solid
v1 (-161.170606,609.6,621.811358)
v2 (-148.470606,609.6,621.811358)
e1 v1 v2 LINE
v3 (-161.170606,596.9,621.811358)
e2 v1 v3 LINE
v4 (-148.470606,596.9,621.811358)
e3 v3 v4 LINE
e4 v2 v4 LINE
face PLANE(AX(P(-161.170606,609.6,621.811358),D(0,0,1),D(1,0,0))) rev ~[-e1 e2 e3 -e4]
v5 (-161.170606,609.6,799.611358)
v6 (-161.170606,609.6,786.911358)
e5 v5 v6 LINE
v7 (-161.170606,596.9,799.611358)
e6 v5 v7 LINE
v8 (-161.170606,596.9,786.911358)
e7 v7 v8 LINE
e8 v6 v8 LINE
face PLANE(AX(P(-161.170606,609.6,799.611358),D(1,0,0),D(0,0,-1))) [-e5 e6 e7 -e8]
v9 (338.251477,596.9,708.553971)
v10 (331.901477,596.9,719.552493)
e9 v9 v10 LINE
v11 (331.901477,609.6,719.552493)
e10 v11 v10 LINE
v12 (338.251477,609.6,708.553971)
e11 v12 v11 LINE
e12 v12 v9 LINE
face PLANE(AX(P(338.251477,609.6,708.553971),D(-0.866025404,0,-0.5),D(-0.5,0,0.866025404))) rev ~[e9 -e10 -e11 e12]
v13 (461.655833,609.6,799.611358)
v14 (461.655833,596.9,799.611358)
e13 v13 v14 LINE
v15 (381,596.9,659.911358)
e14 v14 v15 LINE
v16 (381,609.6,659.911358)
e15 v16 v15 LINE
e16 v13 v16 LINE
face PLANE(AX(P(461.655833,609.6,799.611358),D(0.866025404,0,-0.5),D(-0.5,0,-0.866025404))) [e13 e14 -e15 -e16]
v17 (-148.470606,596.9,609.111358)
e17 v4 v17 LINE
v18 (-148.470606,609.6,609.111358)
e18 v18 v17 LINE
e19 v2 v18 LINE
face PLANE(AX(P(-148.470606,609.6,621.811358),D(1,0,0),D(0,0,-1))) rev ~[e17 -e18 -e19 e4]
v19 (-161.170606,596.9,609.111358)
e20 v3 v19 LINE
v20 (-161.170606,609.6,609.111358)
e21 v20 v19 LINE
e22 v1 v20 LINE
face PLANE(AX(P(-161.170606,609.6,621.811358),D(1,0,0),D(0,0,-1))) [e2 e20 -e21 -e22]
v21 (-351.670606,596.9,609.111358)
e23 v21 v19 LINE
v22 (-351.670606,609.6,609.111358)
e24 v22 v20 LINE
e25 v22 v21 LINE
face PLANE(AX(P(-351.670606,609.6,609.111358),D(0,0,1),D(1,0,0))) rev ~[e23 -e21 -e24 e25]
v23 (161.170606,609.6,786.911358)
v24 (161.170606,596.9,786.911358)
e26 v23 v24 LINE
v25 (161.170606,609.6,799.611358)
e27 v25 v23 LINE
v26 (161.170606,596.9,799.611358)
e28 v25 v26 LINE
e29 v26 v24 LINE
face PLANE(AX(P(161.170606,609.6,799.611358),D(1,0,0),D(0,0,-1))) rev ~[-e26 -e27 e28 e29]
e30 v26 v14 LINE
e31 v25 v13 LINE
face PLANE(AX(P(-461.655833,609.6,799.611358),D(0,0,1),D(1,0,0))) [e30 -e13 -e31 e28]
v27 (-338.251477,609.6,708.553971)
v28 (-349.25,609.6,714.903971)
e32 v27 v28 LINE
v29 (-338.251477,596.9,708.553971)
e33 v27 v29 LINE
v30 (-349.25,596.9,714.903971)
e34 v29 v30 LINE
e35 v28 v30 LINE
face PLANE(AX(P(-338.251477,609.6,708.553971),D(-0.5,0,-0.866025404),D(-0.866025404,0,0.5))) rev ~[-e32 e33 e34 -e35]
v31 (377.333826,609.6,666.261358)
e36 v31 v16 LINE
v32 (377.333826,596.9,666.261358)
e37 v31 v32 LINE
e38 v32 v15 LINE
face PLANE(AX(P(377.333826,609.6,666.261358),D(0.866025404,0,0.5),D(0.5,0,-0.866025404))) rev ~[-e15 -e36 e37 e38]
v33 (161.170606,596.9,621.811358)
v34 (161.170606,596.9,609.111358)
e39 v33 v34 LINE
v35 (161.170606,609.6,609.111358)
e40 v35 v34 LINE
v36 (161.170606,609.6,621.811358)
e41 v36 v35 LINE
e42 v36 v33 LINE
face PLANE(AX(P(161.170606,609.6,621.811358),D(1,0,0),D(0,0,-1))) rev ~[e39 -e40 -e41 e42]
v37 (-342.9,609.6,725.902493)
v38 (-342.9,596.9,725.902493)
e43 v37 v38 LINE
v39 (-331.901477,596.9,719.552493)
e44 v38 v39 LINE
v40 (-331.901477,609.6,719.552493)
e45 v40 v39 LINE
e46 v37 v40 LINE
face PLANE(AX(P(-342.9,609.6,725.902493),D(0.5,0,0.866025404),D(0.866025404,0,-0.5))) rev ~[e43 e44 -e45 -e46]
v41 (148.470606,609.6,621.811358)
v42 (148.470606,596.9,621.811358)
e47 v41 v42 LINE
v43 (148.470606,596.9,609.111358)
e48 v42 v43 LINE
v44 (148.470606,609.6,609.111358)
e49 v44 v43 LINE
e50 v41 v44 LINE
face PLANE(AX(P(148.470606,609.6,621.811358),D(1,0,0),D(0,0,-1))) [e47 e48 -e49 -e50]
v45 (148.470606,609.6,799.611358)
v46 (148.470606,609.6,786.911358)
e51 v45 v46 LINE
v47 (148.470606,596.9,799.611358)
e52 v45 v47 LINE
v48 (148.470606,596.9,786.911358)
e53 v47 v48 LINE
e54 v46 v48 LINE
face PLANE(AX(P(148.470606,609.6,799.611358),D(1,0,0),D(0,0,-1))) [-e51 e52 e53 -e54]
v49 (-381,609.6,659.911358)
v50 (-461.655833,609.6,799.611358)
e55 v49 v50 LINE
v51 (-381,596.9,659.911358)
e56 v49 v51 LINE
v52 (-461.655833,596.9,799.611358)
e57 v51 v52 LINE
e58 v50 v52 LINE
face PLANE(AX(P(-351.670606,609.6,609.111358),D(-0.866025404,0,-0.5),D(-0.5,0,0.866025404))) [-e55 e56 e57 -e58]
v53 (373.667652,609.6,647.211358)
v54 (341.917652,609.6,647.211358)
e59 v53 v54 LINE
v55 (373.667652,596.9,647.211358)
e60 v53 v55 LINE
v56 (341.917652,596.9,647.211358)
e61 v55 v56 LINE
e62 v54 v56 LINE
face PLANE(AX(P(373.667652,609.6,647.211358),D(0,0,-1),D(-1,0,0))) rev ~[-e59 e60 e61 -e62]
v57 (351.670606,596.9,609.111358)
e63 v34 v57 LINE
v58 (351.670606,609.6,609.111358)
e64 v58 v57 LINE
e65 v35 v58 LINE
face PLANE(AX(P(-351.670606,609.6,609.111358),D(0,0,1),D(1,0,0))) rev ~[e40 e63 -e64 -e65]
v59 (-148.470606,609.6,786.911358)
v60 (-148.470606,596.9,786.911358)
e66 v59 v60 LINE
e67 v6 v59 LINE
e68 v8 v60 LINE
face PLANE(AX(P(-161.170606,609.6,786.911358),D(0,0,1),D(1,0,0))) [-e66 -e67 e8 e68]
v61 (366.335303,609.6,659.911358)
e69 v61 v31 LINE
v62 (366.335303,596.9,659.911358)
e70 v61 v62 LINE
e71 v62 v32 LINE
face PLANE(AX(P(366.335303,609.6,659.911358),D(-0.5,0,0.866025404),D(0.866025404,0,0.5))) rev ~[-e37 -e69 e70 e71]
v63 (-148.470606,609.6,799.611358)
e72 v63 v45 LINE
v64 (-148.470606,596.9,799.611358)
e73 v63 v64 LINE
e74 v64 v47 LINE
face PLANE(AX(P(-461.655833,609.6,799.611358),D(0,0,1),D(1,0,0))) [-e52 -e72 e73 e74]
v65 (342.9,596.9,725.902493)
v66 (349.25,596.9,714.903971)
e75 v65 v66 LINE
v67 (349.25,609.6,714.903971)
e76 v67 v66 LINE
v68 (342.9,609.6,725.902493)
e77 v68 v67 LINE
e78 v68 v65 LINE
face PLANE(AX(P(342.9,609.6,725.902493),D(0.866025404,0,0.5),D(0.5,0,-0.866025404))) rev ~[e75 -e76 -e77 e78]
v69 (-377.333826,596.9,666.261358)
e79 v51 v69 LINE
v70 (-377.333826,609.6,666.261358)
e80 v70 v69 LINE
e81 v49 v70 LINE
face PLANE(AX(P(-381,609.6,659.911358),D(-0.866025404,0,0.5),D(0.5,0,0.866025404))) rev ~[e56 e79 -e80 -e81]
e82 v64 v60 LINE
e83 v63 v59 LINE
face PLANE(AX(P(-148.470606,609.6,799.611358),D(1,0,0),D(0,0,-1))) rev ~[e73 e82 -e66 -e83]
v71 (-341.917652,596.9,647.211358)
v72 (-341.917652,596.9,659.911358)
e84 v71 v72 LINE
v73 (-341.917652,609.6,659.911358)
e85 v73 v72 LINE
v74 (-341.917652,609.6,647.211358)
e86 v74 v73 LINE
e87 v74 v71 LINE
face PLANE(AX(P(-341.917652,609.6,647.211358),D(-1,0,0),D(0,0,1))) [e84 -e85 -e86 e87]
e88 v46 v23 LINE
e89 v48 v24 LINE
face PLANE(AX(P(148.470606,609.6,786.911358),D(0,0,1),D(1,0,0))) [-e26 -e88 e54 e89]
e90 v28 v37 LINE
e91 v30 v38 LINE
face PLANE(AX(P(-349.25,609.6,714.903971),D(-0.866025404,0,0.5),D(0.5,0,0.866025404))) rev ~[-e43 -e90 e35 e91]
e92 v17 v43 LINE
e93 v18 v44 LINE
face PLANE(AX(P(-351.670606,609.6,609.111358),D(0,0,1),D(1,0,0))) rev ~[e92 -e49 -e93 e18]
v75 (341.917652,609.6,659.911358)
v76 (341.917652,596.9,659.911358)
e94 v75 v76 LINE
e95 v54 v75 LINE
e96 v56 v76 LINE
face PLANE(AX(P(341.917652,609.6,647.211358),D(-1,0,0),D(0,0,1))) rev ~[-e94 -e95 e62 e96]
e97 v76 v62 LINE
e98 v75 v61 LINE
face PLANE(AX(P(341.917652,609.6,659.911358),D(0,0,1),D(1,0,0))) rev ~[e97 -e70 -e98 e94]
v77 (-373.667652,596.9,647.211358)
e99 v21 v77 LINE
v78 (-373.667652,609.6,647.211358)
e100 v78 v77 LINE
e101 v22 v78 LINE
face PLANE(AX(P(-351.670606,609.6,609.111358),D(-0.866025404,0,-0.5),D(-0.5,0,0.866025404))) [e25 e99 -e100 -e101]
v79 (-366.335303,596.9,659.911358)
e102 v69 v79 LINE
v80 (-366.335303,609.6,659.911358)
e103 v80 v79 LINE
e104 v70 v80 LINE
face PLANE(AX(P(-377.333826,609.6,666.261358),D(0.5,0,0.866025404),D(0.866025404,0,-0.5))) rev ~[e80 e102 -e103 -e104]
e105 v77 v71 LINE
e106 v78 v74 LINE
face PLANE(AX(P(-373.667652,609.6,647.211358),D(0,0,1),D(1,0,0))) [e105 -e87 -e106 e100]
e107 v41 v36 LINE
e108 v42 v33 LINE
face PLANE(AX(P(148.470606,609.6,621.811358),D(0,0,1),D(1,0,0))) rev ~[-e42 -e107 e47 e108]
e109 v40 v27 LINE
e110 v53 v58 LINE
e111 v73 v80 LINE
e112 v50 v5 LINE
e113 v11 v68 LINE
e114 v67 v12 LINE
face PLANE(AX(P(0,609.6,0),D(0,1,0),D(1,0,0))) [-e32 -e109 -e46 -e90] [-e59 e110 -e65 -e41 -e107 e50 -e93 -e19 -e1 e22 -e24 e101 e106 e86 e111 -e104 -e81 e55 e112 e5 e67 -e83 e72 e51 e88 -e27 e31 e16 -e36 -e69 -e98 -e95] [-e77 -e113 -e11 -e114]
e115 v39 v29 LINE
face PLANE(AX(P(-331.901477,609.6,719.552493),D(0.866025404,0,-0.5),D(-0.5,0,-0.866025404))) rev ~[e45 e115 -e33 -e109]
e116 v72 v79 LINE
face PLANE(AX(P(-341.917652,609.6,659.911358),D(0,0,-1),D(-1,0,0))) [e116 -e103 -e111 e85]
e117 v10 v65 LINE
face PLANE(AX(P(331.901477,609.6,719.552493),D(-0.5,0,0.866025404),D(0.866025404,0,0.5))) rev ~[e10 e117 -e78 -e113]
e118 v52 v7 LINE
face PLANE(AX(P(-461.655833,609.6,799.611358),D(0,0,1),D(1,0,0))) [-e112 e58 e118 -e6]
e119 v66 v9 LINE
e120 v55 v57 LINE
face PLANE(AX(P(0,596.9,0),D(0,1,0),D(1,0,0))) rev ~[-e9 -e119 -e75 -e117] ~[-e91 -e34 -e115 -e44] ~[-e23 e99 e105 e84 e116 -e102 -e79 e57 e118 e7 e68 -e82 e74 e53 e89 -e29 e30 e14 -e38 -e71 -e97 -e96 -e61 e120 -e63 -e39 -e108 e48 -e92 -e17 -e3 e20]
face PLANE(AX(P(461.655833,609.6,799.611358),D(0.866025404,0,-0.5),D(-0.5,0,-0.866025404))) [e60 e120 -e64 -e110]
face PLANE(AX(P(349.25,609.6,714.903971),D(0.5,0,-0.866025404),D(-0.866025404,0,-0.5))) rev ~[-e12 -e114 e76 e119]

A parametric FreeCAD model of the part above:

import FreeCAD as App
import Part
import Sketcher
from FreeCAD import Vector
Q = App.Units.Quantity

doc = App.newDocument("Part")
body = doc.addObject("PartDesign::Body", "Body")

sketch1 = doc.addObject("Sketcher::SketchObject", "Sketch")
body.addObject(sketch1)
sketch1.AttachmentSupport = (doc.XZ_Plane, [""])
sketch1.MapMode = "FlatFace"
sketch1.AttachmentOffset = App.Placement(Vector(0, 0, -24 * 25.4), App.Rotation())
sketch1.addGeometry([
    Part.LineSegment(Vector(923, 0, 0), Vector(462, -800, 0)),
    Part.LineSegment(Vector(462, -800, 0), Vector(-462, -800, 0)),
    Part.LineSegment(Vector(-462, -800, 0), Vector(-923, 0, 0)),
    Part.LineSegment(Vector(-923, 0, 0), Vector(-462, 800, 0)),
    Part.LineSegment(Vector(-462, 800, 0), Vector(462, 800, 0)),
    Part.LineSegment(Vector(462, 800, 0), Vector(923, 0, 0)),
    Part.LineSegment(Vector(-703, 0, 0), Vector(-352, -609, 0)),
    Part.LineSegment(Vector(-352, -609, 0), Vector(352, -609, 0)),
    Part.LineSegment(Vector(352, -609, 0), Vector(703, 0, 0)),
    Part.LineSegment(Vector(703, 0, 0), Vector(352, 609, 0)),
    Part.LineSegment(Vector(352, 609, 0), Vector(-352, 609, 0)),
    Part.LineSegment(Vector(-352, 609, 0), Vector(-703, 0, 0)),
], False)
sketch1.addConstraint([
    Sketcher.Constraint("Coincident", 0, 2, 1, 1),
    Sketcher.Constraint("Coincident", 1, 2, 2, 1),
    Sketcher.Constraint("Coincident", 2, 2, 3, 1),
    Sketcher.Constraint("Coincident", 3, 2, 4, 1),
    Sketcher.Constraint("Coincident", 4, 2, 5, 1),
    Sketcher.Constraint("Coincident", 5, 2, 0, 1),
    Sketcher.Constraint("Coincident", 6, 2, 7, 1),
    Sketcher.Constraint("Coincident", 7, 2, 8, 1),
    Sketcher.Constraint("Coincident", 8, 2, 9, 1),
    Sketcher.Constraint("Coincident", 9, 2, 10, 1),
    Sketcher.Constraint("Coincident", 10, 2, 11, 1),
    Sketcher.Constraint("Coincident", 11, 2, 6, 1),
    Sketcher.Constraint("Horizontal", 1),
    Sketcher.Constraint("Horizontal", 4),
    Sketcher.Constraint("Horizontal", 7),
    Sketcher.Constraint("Horizontal", 10),
    Sketcher.Constraint("Symmetric", 0, 2, 3, 2, -1, 1),
    Sketcher.Constraint("Symmetric", 2, 2, 5, 2, -1, 1),
    Sketcher.Constraint("Symmetric", 6, 2, 9, 2, -1, 1),
    Sketcher.Constraint("Symmetric", 8, 2, 11, 2, -1, 1),
    Sketcher.Constraint("PointOnObject", 2, 2, -1),
    Sketcher.Constraint("PointOnObject", 8, 2, -1),
    Sketcher.Constraint("Parallel", 2, 5),
    Sketcher.Constraint("Parallel", 5, 6),
    Sketcher.Constraint("Parallel", 3, 8),
    Sketcher.Constraint("Parallel", 8, 11),
    Sketcher.Constraint("Vertical", 1, 2, 3, 2),
    Sketcher.Constraint("Angle", 0, Q("-120 deg")),
    Sketcher.Constraint("DistanceY", 1, 2, 6, 2, Q("7.5 in")),
    Sketcher.Constraint("DistanceX", 1, 2, 1, 1, 923.311665),
    Sketcher.Constraint("DistanceX", 7, 1, 7, 2, 703.341213),
    Sketcher.Constraint("DistanceX", 2, 2, 5, 2, 1846.62333),
])
pad1 = doc.addObject("PartDesign::Pad", "Pad")
body.addObject(pad1)
pad1.Profile = sketch1
pad1.Length = Q("0.5 in")

sketch2 = doc.addObject("Sketcher::SketchObject", "Sketch001")
body.addObject(sketch2)
sketch2.AttachmentSupport = (doc.XZ_Plane, [""])
sketch2.MapMode = "FlatFace"
sketch2.AttachmentOffset = App.Placement(Vector(0, 0, -24 * 25.4), App.Rotation())
sketch2.addGeometry([
    Part.LineSegment(Vector(-1169, -1045, 0), Vector(-1169, 1045, 0)),
    Part.LineSegment(Vector(-1169, 1045, 0), Vector(1169, 1045, 0)),
    Part.LineSegment(Vector(1169, 1045, 0), Vector(1169, -1045, 0)),
    Part.LineSegment(Vector(1169, -1045, 0), Vector(-1169, -1045, 0)),
    Part.LineSegment(Vector(-462, 800, 0), Vector(-352, 609, 0)),
    Part.LineSegment(Vector(-352, 609, 0), Vector(352, 609, 0)),
    Part.LineSegment(Vector(352, 609, 0), Vector(462, 800, 0)),
    Part.LineSegment(Vector(462, 800, 0), Vector(-462, 800, 0)),
], False)
sketch2.addConstraint([
    Sketcher.Constraint("Coincident", 0, 2, 1, 1),
    Sketcher.Constraint("Coincident", 1, 2, 2, 1),
    Sketcher.Constraint("Coincident", 2, 2, 3, 1),
    Sketcher.Constraint("Coincident", 3, 2, 0, 1),
    Sketcher.Constraint("Coincident", 4, 2, 5, 1),
    Sketcher.Constraint("Coincident", 5, 2, 6, 1),
    Sketcher.Constraint("Coincident", 6, 2, 7, 1),
    Sketcher.Constraint("Coincident", 7, 2, 4, 1),
    Sketcher.Constraint("Vertical", 0),
    Sketcher.Constraint("Horizontal", 1),
    Sketcher.Constraint("Vertical", 2),
    Sketcher.Constraint("Horizontal", 3),
    Sketcher.Constraint("Horizontal", 5),
    Sketcher.Constraint("Horizontal", 7),
    Sketcher.Constraint("Symmetric", 0, 2, 2, 2, -1, 1),
    Sketcher.Constraint("Equal", 4, 6),
    Sketcher.Constraint("Angle", 4, Q("-60 deg")),
    Sketcher.Constraint("DistanceY", 5, 2, 6, 2, Q("7.5 in")),
    Sketcher.Constraint("DistanceX", 1, 1, 1, 2, 2337.202),
    Sketcher.Constraint("DistanceY", 0, 1, 0, 2, 2089.8),
    Sketcher.Constraint("DistanceX", 5, 1, 5, 2, 703.341213),
    Sketcher.Constraint("DistanceX", 4, 2, -1, 1, 351.670606),
    Sketcher.Constraint("DistanceY", -1, 1, 4, 2, 609.111358),
])
pocket1 = doc.addObject("PartDesign::Pocket", "Pocket")
body.addObject(pocket1)
pocket1.Profile = sketch2
pocket1.Length = Q("0.5 in")
pocket1.Reversed = True

sketch3 = doc.addObject("Sketcher::SketchObject", "Sketch002")
body.addObject(sketch3)
sketch3.AttachmentSupport = (doc.XZ_Plane, [""])
sketch3.MapMode = "FlatFace"
sketch3.AttachmentOffset = App.Placement(Vector(0, 0, -24 * 25.4), App.Rotation())
sketch3.addGeometry([
    Part.LineSegment(Vector(-161, 609, 0), Vector(-161, 622, 0)),
    Part.LineSegment(Vector(-161, 622, 0), Vector(-148, 622, 0)),
    Part.LineSegment(Vector(-148, 622, 0), Vector(-148, 609, 0)),
    Part.LineSegment(Vector(-148, 609, 0), Vector(-161, 609, 0)),
    Part.LineSegment(Vector(-343, 726, 0), Vector(-332, 720, 0)),
    Part.LineSegment(Vector(-332, 720, 0), Vector(-338, 709, 0)),
    Part.LineSegment(Vector(-338, 709, 0), Vector(-349, 715, 0)),
    Part.LineSegment(Vector(-349, 715, 0), Vector(-343, 726, 0)),
    Part.LineSegment(Vector(-161, 787, 0), Vector(-161, 800, 0)),
    Part.LineSegment(Vector(-161, 800, 0), Vector(-148, 800, 0)),
    Part.LineSegment(Vector(-148, 800, 0), Vector(-148, 787, 0)),
    Part.LineSegment(Vector(-148, 787, 0), Vector(-161, 787, 0)),
    Part.LineSegment(Vector(-374, 647, 0), Vector(-381, 660, 0)),
    Part.LineSegment(Vector(-381, 660, 0), Vector(-377, 666, 0)),
    Part.LineSegment(Vector(-377, 666, 0), Vector(-366, 660, 0)),
    Part.LineSegment(Vector(-366, 660, 0), Vector(-374, 647, 0)),
    Part.LineSegment(Vector(381, 660, 0), Vector(374, 647, 0)),
    Part.LineSegment(Vector(374, 647, 0), Vector(366, 660, 0)),
    Part.LineSegment(Vector(366, 660, 0), Vector(377, 666, 0)),
    Part.LineSegment(Vector(377, 666, 0), Vector(381, 660, 0)),
    Part.LineSegment(Vector(338, 709, 0), Vector(332, 720, 0)),
    Part.LineSegment(Vector(332, 720, 0), Vector(343, 726, 0)),
    Part.LineSegment(Vector(343, 726, 0), Vector(349, 715, 0)),
    Part.LineSegment(Vector(349, 715, 0), Vector(338, 709, 0)),
    Part.LineSegment(Vector(148, 609, 0), Vector(148, 622, 0)),
    Part.LineSegment(Vector(148, 622, 0), Vector(161, 622, 0)),
    Part.LineSegment(Vector(161, 622, 0), Vector(161, 609, 0)),
    Part.LineSegment(Vector(161, 609, 0), Vector(148, 609, 0)),
    Part.LineSegment(Vector(148, 787, 0), Vector(148, 800, 0)),
    Part.LineSegment(Vector(148, 800, 0), Vector(161, 800, 0)),
    Part.LineSegment(Vector(161, 800, 0), Vector(161, 787, 0)),
    Part.LineSegment(Vector(161, 787, 0), Vector(148, 787, 0)),
], False)
sketch3.addConstraint([
    Sketcher.Constraint("Coincident", 0, 2, 1, 1),
    Sketcher.Constraint("Coincident", 1, 2, 2, 1),
    Sketcher.Constraint("Coincident", 2, 2, 3, 1),
    Sketcher.Constraint("Coincident", 3, 2, 0, 1),
    Sketcher.Constraint("Coincident", 4, 2, 5, 1),
    Sketcher.Constraint("Coincident", 5, 2, 6, 1),
    Sketcher.Constraint("Coincident", 6, 2, 7, 1),
    Sketcher.Constraint("Coincident", 7, 2, 4, 1),
    Sketcher.Constraint("Coincident", 8, 2, 9, 1),
    Sketcher.Constraint("Coincident", 9, 2, 10, 1),
    Sketcher.Constraint("Coincident", 10, 2, 11, 1),
    Sketcher.Constraint("Coincident", 11, 2, 8, 1),
    Sketcher.Constraint("Coincident", 12, 2, 13, 1),
    Sketcher.Constraint("Coincident", 13, 2, 14, 1),
    Sketcher.Constraint("Coincident", 14, 2, 15, 1),
    Sketcher.Constraint("Coincident", 15, 2, 12, 1),
    Sketcher.Constraint("Coincident", 16, 2, 17, 1),
    Sketcher.Constraint("Coincident", 17, 2, 18, 1),
    Sketcher.Constraint("Coincident", 18, 2, 19, 1),
    Sketcher.Constraint("Coincident", 19, 2, 16, 1),
    Sketcher.Constraint("Coincident", 20, 2, 21, 1),
    Sketcher.Constraint("Coincident", 21, 2, 22, 1),
    Sketcher.Constraint("Coincident", 22, 2, 23, 1),
    Sketcher.Constraint("Coincident", 23, 2, 20, 1),
    Sketcher.Constraint("Coincident", 24, 2, 25, 1),
    Sketcher.Constraint("Coincident", 25, 2, 26, 1),
    Sketcher.Constraint("Coincident", 26, 2, 27, 1),
    Sketcher.Constraint("Coincident", 27, 2, 24, 1),
    Sketcher.Constraint("Coincident", 28, 2, 29, 1),
    Sketcher.Constraint("Coincident", 29, 2, 30, 1),
    Sketcher.Constraint("Coincident", 30, 2, 31, 1),
    Sketcher.Constraint("Coincident", 31, 2, 28, 1),
    Sketcher.Constraint("Vertical", 0),
    Sketcher.Constraint("Horizontal", 1),
    Sketcher.Constraint("Vertical", 2),
    Sketcher.Constraint("Horizontal", 3),
    Sketcher.Constraint("Vertical", 8),
    Sketcher.Constraint("Horizontal", 9),
    Sketcher.Constraint("Vertical", 10),
    Sketcher.Constraint("Horizontal", 11),
    Sketcher.Constraint("Vertical", 24),
    Sketcher.Constraint("Horizontal", 25),
    Sketcher.Constraint("Vertical", 26),
    Sketcher.Constraint("Horizontal", 27),
    Sketcher.Constraint("Vertical", 28),
    Sketcher.Constraint("Horizontal", 29),
    Sketcher.Constraint("Vertical", 30),
    Sketcher.Constraint("Horizontal", 31),
    Sketcher.Constraint("Symmetric", 15, 2, 16, 2, -2),
    Sketcher.Constraint("Symmetric", 14, 2, 17, 2, -2),
    Sketcher.Constraint("Symmetric", 13, 2, 18, 2, -2),
    Sketcher.Constraint("Symmetric", 12, 2, 19, 2, -2),
    Sketcher.Constraint("Symmetric", 4, 2, 20, 2, -2),
    Sketcher.Constraint("Symmetric", 7, 2, 21, 2, -2),
    Sketcher.Constraint("Symmetric", 6, 2, 22, 2, -2),
    Sketcher.Constraint("Symmetric", 5, 2, 23, 2, -2),
    Sketcher.Constraint("Symmetric", 1, 2, 24, 2, -2),
    Sketcher.Constraint("Symmetric", 3, 2, 26, 2, -2),
    Sketcher.Constraint("Symmetric", 9, 2, 28, 2, -2),
    Sketcher.Constraint("Symmetric", 11, 2, 30, 2, -2),
    Sketcher.Constraint("Perpendicular", 4, 5),
    Sketcher.Constraint("Perpendicular", 5, 6),
    Sketcher.Constraint("Perpendicular", 6, 7),
    Sketcher.Constraint("Parallel", 7, 13),
    Sketcher.Constraint("Perpendicular", 13, 14),
    Sketcher.Constraint("Perpendicular", 14, 15),
    Sketcher.Constraint("Parallel", 15, 16),
    Sketcher.Constraint("Horizontal", 12, 2, 14, 2),
    Sketcher.Constraint("Vertical", 3, 2, 8, 2),
    Sketcher.Constraint("Vertical", 2, 2, 9, 2),
    Sketcher.Constraint("Equal", 31, 0),
    Sketcher.Constraint("Equal", 2, 8),
    Sketcher.Constraint("Equal", 4, 5),
    Sketcher.Constraint("Equal", 7, 14),
    Sketcher.Constraint("DistanceX", 1, 1, 1, 2, Q("0.5 in")),
    Sketcher.Constraint("DistanceX", 12, 2, -1, 1, Q("15 in")),
    Sketcher.Constraint("Angle", 4, Q("-30 deg")),
    Sketcher.Constraint("DistanceY", 0, 2, 8, 2, Q("7 in")),
    Sketcher.Constraint("DistanceY", 1, 2, 16, 2, Q("1 in")),
    Sketcher.Constraint("DistanceY", 2, 2, 17, 2, Q("2 in")),
    Sketcher.Constraint("DistanceX", 7, 2, -1, 1, Q("13.5 in")),
    Sketcher.Constraint("DistanceY", -1, 1, 5, 2, 708.553971),
    Sketcher.Constraint("DistanceX", 4, 2, 0, 2, 170.730871),
    Sketcher.Constraint("DistanceY", -1, 1, 0, 2, 621.811358),
])
pocket2 = doc.addObject("PartDesign::Pocket", "Pocket001")
body.addObject(pocket2)
pocket2.Profile = sketch3
pocket2.Length = Q("0.5 in")
pocket2.Reversed = True

sketch4 = doc.addObject("Sketcher::SketchObject", "Sketch003")
body.addObject(sketch4)
sketch4.AttachmentSupport = (doc.XZ_Plane, [""])
sketch4.MapMode = "FlatFace"
sketch4.AttachmentOffset = App.Placement(Vector(0, 0, -24 * 25.4), App.Rotation())
sketch4.addGeometry([
    Part.LineSegment(Vector(366, 660, 0), Vector(374, 647, 0)),
    Part.LineSegment(Vector(374, 647, 0), Vector(342, 647, 0)),
    Part.LineSegment(Vector(342, 647, 0), Vector(342, 660, 0)),
    Part.LineSegment(Vector(342, 660, 0), Vector(366, 660, 0)),
    Part.LineSegment(Vector(-342, 647, 0), Vector(-374, 647, 0)),
    Part.LineSegment(Vector(-374, 647, 0), Vector(-366, 660, 0)),
    Part.LineSegment(Vector(-366, 660, 0), Vector(-342, 660, 0)),
    Part.LineSegment(Vector(-342, 660, 0), Vector(-342, 647, 0)),
], False)
sketch4.addConstraint([
    Sketcher.Constraint("Coincident", 0, 2, 1, 1),
    Sketcher.Constraint("Coincident", 1, 2, 2, 1),
    Sketcher.Constraint("Coincident", 2, 2, 3, 1),
    Sketcher.Constraint("Coincident", 3, 2, 0, 1),
    Sketcher.Constraint("Coincident", 4, 2, 5, 1),
    Sketcher.Constraint("Coincident", 5, 2, 6, 1),
    Sketcher.Constraint("Coincident", 6, 2, 7, 1),
    Sketcher.Constraint("Coincident", 7, 2, 4, 1),
    Sketcher.Constraint("Horizontal", 1),
    Sketcher.Constraint("Vertical", 2),
    Sketcher.Constraint("Horizontal", 3),
    Sketcher.Constraint("Horizontal", 4),
    Sketcher.Constraint("Horizontal", 6),
    Sketcher.Constraint("Vertical", 7),
    Sketcher.Constraint("Symmetric", 0, 2, 4, 2, -2),
    Sketcher.Constraint("Symmetric", 3, 2, 5, 2, -2),
    Sketcher.Constraint("Equal", 1, 4),
    Sketcher.Constraint("DistanceY", 2, 1, 2, 2, Q("0.5 in")),
    Sketcher.Constraint("Angle", 0, Q("-60 deg")),
    Sketcher.Constraint("DistanceX", 1, 2, 1, 1, Q("1.25 in")),
    Sketcher.Constraint("DistanceX", -1, 1, 0, 2, 373.667652),
    Sketcher.Constraint("DistanceY", -1, 1, 0, 2, 647.211358),
])
pocket3 = doc.addObject("PartDesign::Pocket", "Pocket002")
body.addObject(pocket3)
pocket3.Profile = sketch4
pocket3.Length = Q("0.5 in")
pocket3.Reversed = True

doc.recompute()
